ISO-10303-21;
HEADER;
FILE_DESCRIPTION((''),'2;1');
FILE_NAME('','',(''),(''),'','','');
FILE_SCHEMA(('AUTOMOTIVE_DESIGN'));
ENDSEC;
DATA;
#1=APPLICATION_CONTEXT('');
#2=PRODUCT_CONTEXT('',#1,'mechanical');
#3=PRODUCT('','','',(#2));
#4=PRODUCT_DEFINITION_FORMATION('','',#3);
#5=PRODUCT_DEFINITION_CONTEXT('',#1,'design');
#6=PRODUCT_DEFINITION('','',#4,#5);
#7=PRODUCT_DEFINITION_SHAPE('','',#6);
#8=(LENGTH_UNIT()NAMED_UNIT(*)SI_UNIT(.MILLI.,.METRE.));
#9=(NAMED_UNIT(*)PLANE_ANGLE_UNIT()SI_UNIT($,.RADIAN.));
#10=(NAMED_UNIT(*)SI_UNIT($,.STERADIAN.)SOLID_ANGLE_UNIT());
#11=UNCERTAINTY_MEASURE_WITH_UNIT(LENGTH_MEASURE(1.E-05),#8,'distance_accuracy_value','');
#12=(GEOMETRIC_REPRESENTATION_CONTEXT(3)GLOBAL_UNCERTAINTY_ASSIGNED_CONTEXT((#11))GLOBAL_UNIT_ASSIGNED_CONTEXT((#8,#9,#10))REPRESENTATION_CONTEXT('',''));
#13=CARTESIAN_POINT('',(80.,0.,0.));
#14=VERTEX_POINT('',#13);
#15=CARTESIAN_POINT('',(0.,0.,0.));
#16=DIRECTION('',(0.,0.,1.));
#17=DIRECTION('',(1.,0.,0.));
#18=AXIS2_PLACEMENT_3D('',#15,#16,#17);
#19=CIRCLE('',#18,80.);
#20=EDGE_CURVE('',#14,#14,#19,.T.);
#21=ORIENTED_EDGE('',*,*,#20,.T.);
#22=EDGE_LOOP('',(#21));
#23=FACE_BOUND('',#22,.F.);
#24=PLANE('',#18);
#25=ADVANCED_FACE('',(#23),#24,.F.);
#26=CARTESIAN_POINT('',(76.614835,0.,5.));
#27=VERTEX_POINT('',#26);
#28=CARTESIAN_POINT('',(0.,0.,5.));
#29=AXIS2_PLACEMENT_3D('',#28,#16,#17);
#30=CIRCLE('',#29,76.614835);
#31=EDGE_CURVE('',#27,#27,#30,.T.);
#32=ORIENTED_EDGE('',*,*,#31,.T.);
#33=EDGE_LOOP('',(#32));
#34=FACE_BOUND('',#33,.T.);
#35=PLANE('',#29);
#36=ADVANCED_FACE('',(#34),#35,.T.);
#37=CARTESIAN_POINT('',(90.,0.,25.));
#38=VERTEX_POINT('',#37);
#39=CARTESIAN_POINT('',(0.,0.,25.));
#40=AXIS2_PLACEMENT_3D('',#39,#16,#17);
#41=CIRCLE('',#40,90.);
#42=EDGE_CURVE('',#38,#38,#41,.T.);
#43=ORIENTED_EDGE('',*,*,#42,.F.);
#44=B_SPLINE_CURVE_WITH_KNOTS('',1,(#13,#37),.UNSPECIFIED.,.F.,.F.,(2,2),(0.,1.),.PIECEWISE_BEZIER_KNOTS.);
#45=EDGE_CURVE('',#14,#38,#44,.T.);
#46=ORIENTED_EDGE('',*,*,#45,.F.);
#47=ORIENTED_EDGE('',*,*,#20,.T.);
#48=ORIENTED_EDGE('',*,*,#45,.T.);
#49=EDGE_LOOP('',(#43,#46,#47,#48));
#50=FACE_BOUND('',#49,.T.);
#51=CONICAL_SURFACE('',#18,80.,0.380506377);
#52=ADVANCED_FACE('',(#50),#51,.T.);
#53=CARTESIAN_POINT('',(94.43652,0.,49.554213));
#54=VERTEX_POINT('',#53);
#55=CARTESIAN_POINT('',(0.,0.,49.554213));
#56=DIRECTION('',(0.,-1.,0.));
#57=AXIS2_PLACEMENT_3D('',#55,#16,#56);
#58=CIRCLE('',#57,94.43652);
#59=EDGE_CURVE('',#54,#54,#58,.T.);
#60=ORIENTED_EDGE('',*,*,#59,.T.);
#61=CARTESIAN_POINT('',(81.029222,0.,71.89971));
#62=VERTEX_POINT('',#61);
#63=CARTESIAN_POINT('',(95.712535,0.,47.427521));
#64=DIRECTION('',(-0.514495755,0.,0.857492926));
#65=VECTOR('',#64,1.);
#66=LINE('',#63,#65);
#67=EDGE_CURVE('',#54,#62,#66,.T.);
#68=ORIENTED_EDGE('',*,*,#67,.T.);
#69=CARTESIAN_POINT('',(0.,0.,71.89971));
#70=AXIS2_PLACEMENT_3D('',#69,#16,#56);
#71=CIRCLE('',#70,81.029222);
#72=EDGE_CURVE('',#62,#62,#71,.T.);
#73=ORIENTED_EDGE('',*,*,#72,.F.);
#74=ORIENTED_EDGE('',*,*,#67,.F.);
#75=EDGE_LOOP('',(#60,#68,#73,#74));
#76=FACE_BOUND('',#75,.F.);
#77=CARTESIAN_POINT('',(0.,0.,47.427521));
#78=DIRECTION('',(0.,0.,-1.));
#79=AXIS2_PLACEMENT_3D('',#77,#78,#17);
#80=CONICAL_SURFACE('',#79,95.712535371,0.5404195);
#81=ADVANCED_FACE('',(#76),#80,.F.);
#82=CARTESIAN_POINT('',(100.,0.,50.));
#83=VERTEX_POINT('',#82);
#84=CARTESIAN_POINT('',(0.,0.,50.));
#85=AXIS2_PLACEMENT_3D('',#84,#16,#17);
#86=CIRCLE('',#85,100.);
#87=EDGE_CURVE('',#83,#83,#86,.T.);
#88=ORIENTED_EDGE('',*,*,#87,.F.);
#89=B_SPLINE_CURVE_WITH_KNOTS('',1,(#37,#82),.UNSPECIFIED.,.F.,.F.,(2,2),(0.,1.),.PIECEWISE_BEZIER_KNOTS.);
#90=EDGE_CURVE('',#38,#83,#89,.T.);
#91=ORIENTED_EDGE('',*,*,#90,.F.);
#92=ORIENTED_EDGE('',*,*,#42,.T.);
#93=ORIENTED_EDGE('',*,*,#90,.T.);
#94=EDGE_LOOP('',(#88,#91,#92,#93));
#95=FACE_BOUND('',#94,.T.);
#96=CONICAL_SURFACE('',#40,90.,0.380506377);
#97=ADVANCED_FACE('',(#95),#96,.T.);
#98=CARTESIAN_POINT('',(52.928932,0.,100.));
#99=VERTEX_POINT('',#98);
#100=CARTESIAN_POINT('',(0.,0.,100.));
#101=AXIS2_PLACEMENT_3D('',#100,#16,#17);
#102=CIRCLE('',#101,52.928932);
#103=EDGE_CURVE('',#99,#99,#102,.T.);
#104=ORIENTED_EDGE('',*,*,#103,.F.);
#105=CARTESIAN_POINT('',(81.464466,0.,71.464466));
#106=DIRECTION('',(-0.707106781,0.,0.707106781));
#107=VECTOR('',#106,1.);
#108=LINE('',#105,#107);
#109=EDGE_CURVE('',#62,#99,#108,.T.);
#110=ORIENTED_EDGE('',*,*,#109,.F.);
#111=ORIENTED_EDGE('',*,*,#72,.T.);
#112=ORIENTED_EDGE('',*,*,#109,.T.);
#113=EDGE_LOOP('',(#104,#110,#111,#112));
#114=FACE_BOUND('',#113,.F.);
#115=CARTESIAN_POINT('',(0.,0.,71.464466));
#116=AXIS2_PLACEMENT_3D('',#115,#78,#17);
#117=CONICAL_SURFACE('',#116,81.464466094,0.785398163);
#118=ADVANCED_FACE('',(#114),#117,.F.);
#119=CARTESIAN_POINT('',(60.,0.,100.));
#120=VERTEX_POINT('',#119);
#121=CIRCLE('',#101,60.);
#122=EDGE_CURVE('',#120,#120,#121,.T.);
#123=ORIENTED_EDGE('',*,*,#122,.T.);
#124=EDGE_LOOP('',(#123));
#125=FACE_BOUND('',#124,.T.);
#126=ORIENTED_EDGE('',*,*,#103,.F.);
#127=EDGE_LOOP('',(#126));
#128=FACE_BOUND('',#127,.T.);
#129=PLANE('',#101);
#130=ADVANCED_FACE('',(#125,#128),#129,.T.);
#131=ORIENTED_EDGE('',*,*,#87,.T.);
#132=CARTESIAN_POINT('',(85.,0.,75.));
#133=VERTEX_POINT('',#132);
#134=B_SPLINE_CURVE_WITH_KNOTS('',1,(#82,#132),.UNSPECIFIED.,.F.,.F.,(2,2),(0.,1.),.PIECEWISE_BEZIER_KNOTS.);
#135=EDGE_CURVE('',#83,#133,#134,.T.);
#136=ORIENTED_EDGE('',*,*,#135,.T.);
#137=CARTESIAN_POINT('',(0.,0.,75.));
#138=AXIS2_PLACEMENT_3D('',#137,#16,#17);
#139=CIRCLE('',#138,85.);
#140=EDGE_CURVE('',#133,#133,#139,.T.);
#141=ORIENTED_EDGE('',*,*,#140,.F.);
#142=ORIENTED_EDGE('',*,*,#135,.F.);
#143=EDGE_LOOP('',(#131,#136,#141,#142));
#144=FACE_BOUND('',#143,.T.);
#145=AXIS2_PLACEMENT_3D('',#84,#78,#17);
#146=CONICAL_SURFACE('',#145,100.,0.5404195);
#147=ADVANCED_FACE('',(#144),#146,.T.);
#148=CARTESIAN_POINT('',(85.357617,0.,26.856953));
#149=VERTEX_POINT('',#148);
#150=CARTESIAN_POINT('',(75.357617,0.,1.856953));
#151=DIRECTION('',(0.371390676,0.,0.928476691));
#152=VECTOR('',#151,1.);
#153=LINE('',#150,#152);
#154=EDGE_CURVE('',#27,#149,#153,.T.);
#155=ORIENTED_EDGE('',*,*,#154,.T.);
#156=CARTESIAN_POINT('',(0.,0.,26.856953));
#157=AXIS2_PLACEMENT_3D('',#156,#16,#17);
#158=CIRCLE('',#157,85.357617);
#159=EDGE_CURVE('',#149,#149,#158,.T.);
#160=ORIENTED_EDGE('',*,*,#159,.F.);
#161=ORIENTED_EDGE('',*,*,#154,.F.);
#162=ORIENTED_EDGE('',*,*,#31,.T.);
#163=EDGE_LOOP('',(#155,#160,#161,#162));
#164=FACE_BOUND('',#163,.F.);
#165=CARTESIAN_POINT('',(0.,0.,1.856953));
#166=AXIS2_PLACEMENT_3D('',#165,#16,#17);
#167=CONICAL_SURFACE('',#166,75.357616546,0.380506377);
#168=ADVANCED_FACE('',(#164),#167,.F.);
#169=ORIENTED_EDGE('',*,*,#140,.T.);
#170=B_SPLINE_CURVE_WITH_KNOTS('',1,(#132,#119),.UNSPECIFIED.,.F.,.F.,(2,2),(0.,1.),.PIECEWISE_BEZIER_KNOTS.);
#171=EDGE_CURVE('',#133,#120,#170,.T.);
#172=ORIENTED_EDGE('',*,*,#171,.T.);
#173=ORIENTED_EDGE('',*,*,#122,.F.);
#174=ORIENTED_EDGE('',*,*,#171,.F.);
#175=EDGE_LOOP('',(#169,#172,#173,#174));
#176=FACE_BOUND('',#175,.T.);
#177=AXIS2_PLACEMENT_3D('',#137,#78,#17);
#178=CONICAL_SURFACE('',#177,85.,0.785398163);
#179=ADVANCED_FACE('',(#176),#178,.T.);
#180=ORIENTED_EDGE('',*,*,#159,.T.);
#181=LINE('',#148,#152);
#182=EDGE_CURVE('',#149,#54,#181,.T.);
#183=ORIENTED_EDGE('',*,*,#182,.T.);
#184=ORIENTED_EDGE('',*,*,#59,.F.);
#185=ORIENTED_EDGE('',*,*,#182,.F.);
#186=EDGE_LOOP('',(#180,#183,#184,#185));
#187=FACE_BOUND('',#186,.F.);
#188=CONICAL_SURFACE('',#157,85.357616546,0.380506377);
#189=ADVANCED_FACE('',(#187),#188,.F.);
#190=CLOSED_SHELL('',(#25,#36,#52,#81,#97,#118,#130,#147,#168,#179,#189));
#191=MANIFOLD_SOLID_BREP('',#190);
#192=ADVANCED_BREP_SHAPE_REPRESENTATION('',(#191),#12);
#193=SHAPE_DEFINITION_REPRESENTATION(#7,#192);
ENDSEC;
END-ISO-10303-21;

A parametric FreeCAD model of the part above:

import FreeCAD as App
import Part
import Sketcher

V = App.Vector


def faces_at(feature, points):
    """Names of the faces that lie closest to the given points."""
    faces = feature.Shape.Faces
    near = lambda p: min(range(len(faces)), key=lambda i: faces[i].distToShape(Part.Vertex(*p))[0])
    return sorted({f"Face{near(p) + 1}" for p in points})

doc = App.newDocument("Part")
params = doc.addObject("Spreadsheet::Sheet", "Params")
for row, (alias, value) in enumerate([
    ("sketch1_diameter", "160 mm"),
    ("sketch2_diameter", "180 mm"),
    ("sketch3_diameter", "180 mm"),
    ("sketch4_diameter", "200 mm"),
    ("sketch5_diameter", "200 mm"),
    ("sketch6_diameter", "170 mm"),
    ("sketch7_diameter", "170 mm"),
    ("sketch8_diameter", "120 mm"),
    ("thickness_wall", "5 mm"),
], start=1):
    params.set(f"A{row}", alias)
    params.set(f"B{row}", "=" + value)
    params.setAlias(f"B{row}", alias)

body = doc.addObject("PartDesign::Body", "Body")

# Sketch on XY plane
sketch1 = body.newObject("Sketcher::SketchObject", "Sketch")
sketch1.AttachmentSupport = (doc.getObject("XY_Plane"), [""])
sketch1.MapMode = "FlatFace"
sketch1.addGeometry(Part.Circle(V(0, 0, 0), V(0, 0, 1), 80), False)
sketch1.addConstraint([
    Sketcher.Constraint("Coincident", 0, 3, -1, 1),
    Sketcher.Constraint("Diameter", 0, 160.0),
])
sketch1.setExpression("Constraints[1]", "Params.sketch1_diameter")

# Sketch on XY plane
sketch2 = body.newObject("Sketcher::SketchObject", "Sketch001")
sketch2.AttachmentSupport = (doc.getObject("XY_Plane"), [""])
sketch2.MapMode = "FlatFace"
sketch2.AttachmentOffset = App.Placement(V(0, 0, 25), App.Rotation())
sketch2.addGeometry(Part.Circle(V(0, 0, 0), V(0, 0, 1), 90), False)
sketch2.addConstraint([
    Sketcher.Constraint("Coincident", 0, 3, -1, 1),
    Sketcher.Constraint("Diameter", 0, 180.0),
])
sketch2.setExpression("Constraints[1]", "Params.sketch2_diameter")

additiveloft = body.newObject("PartDesign::AdditiveLoft", "AdditiveLoft")
additiveloft.Profile = sketch1
additiveloft.Sections = [sketch2]

# Sketch on XY plane
sketch3 = body.newObject("Sketcher::SketchObject", "Sketch002")
sketch3.AttachmentSupport = (doc.getObject("XY_Plane"), [""])
sketch3.MapMode = "FlatFace"
sketch3.AttachmentOffset = App.Placement(V(0, 0, 25), App.Rotation())
sketch3.addGeometry(Part.Circle(V(0, 0, 0), V(0, 0, 1), 90), False)
sketch3.addConstraint([
    Sketcher.Constraint("Coincident", 0, 3, -1, 1),
    Sketcher.Constraint("Diameter", 0, 180.0),
])
sketch3.setExpression("Constraints[1]", "Params.sketch3_diameter")

# Sketch on XY plane
sketch4 = body.newObject("Sketcher::SketchObject", "Sketch003")
sketch4.AttachmentSupport = (doc.getObject("XY_Plane"), [""])
sketch4.MapMode = "FlatFace"
sketch4.AttachmentOffset = App.Placement(V(0, 0, 50), App.Rotation())
sketch4.addGeometry(Part.Circle(V(0, 0, 0), V(0, 0, 1), 100), False)
sketch4.addConstraint([
    Sketcher.Constraint("Coincident", 0, 3, -1, 1),
    Sketcher.Constraint("Diameter", 0, 200.0),
])
sketch4.setExpression("Constraints[1]", "Params.sketch4_diameter")

additiveloft2 = body.newObject("PartDesign::AdditiveLoft", "AdditiveLoft001")
additiveloft2.Profile = sketch3
additiveloft2.Sections = [sketch4]

# Sketch on XY plane
sketch5 = body.newObject("Sketcher::SketchObject", "Sketch004")
sketch5.AttachmentSupport = (doc.getObject("XY_Plane"), [""])
sketch5.MapMode = "FlatFace"
sketch5.AttachmentOffset = App.Placement(V(0, 0, 50), App.Rotation())
sketch5.addGeometry(Part.Circle(V(0, 0, 0), V(0, 0, 1), 100), False)
sketch5.addConstraint([
    Sketcher.Constraint("Coincident", 0, 3, -1, 1),
    Sketcher.Constraint("Diameter", 0, 200.0),
])
sketch5.setExpression("Constraints[1]", "Params.sketch5_diameter")

# Sketch on XY plane
sketch6 = body.newObject("Sketcher::SketchObject", "Sketch005")
sketch6.AttachmentSupport = (doc.getObject("XY_Plane"), [""])
sketch6.MapMode = "FlatFace"
sketch6.AttachmentOffset = App.Placement(V(0, 0, 75), App.Rotation())
sketch6.addGeometry(Part.Circle(V(0, 0, 0), V(0, 0, 1), 85), False)
sketch6.addConstraint([
    Sketcher.Constraint("Coincident", 0, 3, -1, 1),
    Sketcher.Constraint("Diameter", 0, 170.0),
])
sketch6.setExpression("Constraints[1]", "Params.sketch6_diameter")

additiveloft3 = body.newObject("PartDesign::AdditiveLoft", "AdditiveLoft002")
additiveloft3.Profile = sketch5
additiveloft3.Sections = [sketch6]

# Sketch on XY plane
sketch7 = body.newObject("Sketcher::SketchObject", "Sketch006")
sketch7.AttachmentSupport = (doc.getObject("XY_Plane"), [""])
sketch7.MapMode = "FlatFace"
sketch7.AttachmentOffset = App.Placement(V(0, 0, 75), App.Rotation())
sketch7.addGeometry(Part.Circle(V(0, 0, 0), V(0, 0, 1), 85), False)
sketch7.addConstraint([
    Sketcher.Constraint("Coincident", 0, 3, -1, 1),
    Sketcher.Constraint("Diameter", 0, 170.0),
])
sketch7.setExpression("Constraints[1]", "Params.sketch7_diameter")

# Sketch on XY plane
sketch8 = body.newObject("Sketcher::SketchObject", "Sketch007")
sketch8.AttachmentSupport = (doc.getObject("XY_Plane"), [""])
sketch8.MapMode = "FlatFace"
sketch8.AttachmentOffset = App.Placement(V(0, 0, 100), App.Rotation())
sketch8.addGeometry(Part.Circle(V(0, 0, 0), V(0, 0, 1), 60), False)
sketch8.addConstraint([
    Sketcher.Constraint("Coincident", 0, 3, -1, 1),
    Sketcher.Constraint("Diameter", 0, 120.0),
])
sketch8.setExpression("Constraints[1]", "Params.sketch8_diameter")

additiveloft4 = body.newObject("PartDesign::AdditiveLoft", "AdditiveLoft003")
additiveloft4.Profile = sketch7
additiveloft4.Sections = [sketch8]
doc.recompute()

thickness = body.newObject("PartDesign::Thickness", "Thickness")
thickness.Base = (additiveloft4, faces_at(additiveloft4, [(0, 0, 100)]))
thickness.setExpression("Value", "Params.thickness_wall")
thickness.Reversed = True
thickness.Join = "Intersection"

doc.recompute()
